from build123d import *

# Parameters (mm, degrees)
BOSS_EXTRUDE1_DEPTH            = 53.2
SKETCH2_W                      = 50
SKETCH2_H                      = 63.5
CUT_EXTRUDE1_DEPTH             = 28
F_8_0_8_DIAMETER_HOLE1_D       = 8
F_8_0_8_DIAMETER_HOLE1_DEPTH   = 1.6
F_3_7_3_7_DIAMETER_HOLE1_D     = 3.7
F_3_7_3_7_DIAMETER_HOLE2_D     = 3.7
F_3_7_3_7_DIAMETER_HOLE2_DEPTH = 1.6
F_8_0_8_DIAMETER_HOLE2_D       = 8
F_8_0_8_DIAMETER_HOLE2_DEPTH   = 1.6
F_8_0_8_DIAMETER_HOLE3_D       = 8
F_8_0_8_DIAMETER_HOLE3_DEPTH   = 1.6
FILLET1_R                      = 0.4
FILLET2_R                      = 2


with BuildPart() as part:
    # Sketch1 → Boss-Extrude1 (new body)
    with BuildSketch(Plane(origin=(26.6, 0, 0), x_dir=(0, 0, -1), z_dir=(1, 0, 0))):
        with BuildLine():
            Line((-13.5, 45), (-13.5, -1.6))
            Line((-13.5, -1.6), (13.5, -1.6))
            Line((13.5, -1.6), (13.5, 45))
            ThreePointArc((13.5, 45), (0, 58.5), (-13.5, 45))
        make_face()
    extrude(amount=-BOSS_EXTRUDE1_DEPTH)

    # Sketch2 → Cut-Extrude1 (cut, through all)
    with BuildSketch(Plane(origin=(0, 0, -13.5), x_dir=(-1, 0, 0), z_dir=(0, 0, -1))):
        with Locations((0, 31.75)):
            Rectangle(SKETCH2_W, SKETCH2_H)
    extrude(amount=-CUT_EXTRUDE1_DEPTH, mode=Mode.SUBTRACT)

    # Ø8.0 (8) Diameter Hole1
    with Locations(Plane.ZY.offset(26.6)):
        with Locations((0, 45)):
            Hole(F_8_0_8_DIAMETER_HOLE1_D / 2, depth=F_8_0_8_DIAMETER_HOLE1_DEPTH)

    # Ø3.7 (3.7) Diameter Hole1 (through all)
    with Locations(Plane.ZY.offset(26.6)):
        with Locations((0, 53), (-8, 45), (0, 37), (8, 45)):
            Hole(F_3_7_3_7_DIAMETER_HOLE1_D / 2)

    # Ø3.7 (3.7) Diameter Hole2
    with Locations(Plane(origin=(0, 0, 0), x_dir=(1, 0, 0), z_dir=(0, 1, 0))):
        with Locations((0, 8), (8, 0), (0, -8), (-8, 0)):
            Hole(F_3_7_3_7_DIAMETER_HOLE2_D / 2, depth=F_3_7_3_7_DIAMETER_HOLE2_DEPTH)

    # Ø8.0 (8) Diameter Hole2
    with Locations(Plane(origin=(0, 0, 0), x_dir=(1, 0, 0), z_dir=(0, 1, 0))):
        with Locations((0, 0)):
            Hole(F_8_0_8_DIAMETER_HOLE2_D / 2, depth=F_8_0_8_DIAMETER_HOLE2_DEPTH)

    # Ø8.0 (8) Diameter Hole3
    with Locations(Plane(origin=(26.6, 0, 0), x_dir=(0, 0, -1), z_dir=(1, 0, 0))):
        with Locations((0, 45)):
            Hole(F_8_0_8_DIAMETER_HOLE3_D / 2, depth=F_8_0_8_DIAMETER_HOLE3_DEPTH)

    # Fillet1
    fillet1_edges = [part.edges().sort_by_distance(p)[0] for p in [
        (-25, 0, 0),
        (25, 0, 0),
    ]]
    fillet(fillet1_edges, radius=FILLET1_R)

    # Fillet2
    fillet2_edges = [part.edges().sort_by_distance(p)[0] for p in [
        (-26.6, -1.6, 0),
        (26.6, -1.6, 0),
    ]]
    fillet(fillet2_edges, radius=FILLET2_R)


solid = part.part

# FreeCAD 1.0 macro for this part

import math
import FreeCAD as App
import Part
import Sketcher
Q = App.Units.Quantity


def edges_at(feature, points):
    """Names of the edges that pass closest to the given points."""
    edges = feature.Shape.Edges
    near = lambda p: min(range(len(edges)), key=lambda i: edges[i].distToShape(Part.Vertex(*p))[0])
    return sorted({f"Edge{near(p) + 1}" for p in points})

doc = App.newDocument("Part")
body = doc.addObject("PartDesign::Body", "Body")

# Sketch on YZ plane
sketch1 = body.newObject("Sketcher::SketchObject", "Sketch")
sketch1.AttachmentSupport = (doc.getObject("YZ_Plane"), [""])
sketch1.MapMode = "FlatFace"
sketch1.AttachmentOffset = App.Placement(App.Vector(0, 0, 26.6), App.Rotation())
sketch1.addGeometry(Part.LineSegment(App.Vector(45, 13.5, 0), App.Vector(-1.6, 13.5, 0)), False)
sketch1.addGeometry(Part.LineSegment(App.Vector(-1.6, 13.5, 0), App.Vector(-1.6, -13.5, 0)), False)
sketch1.addGeometry(Part.LineSegment(App.Vector(-1.6, -13.5, 0), App.Vector(45, -13.5, 0)), False)
sketch1.addGeometry(Part.ArcOfCircle(Part.Circle(App.Vector(45, 0, 0), App.Vector(0, 0, 1), 13.5), math.radians(-90), math.radians(90)), False)
sketch1.addConstraint(Sketcher.Constraint("Coincident", 0, 2, 1, 1))
sketch1.addConstraint(Sketcher.Constraint("Coincident", 1, 2, 2, 1))
sketch1.addConstraint(Sketcher.Constraint("Tangent", 2, 2, 3, 1))
sketch1.addConstraint(Sketcher.Constraint("Tangent", 3, 2, 0, 1))
sketch1.addConstraint(Sketcher.Constraint("Horizontal", 0))
sketch1.addConstraint(Sketcher.Constraint("Vertical", 1))
sketch1.addConstraint(Sketcher.Constraint("Horizontal", 2))
sketch1.addConstraint(Sketcher.Constraint("PointOnObject", 3, 3, -1))
sketch1.addConstraint(Sketcher.Constraint("Radius", 3, Q("13.5 mm")))
sketch1.addConstraint(Sketcher.Constraint("DistanceX", 0, 2, 0, 1, Q("46.6 mm")))
sketch1.addConstraint(Sketcher.Constraint("DistanceX", -1, 1, 3, 3, Q("45 mm")))
pad1 = body.newObject("PartDesign::Pad", "Pad")
pad1.Profile = sketch1
pad1.Length = 53.2
pad1.Reversed = True

# Sketch on XY plane
sketch2 = body.newObject("Sketcher::SketchObject", "Sketch001")
sketch2.AttachmentSupport = (doc.getObject("XY_Plane"), [""])
sketch2.MapMode = "FlatFace"
sketch2.AttachmentOffset = App.Placement(App.Vector(0, 0, -13.5), App.Rotation())
sketch2.addGeometry(Part.LineSegment(App.Vector(25, 63.5, 0), App.Vector(25, 0, 0)), False)
sketch2.addGeometry(Part.LineSegment(App.Vector(25, 0, 0), App.Vector(-25, 0, 0)), False)
sketch2.addGeometry(Part.LineSegment(App.Vector(-25, 0, 0), App.Vector(-25, 63.5, 0)), False)
sketch2.addGeometry(Part.LineSegment(App.Vector(-25, 63.5, 0), App.Vector(25, 63.5, 0)), False)
sketch2.addConstraint(Sketcher.Constraint("Coincident", 0, 2, 1, 1))
sketch2.addConstraint(Sketcher.Constraint("Coincident", 1, 2, 2, 1))
sketch2.addConstraint(Sketcher.Constraint("Coincident", 2, 2, 3, 1))
sketch2.addConstraint(Sketcher.Constraint("Coincident", 3, 2, 0, 1))
sketch2.addConstraint(Sketcher.Constraint("Vertical", 0))
sketch2.addConstraint(Sketcher.Constraint("Horizontal", 1))
sketch2.addConstraint(Sketcher.Constraint("Vertical", 2))
sketch2.addConstraint(Sketcher.Constraint("Horizontal", 3))
sketch2.addConstraint(Sketcher.Constraint("Symmetric", 0, 2, 1, 2, -1, 1))
sketch2.addConstraint(Sketcher.Constraint("DistanceX", 1, 2, 1, 1, Q("50 mm")))
sketch2.addConstraint(Sketcher.Constraint("DistanceY", 0, 2, 0, 1, Q("63.5 mm")))
pocket1 = body.newObject("PartDesign::Pocket", "Pocket")
pocket1.Profile = sketch2
pocket1.Type = "ThroughAll"
pocket1.Reversed = True

# Sketch on YZ plane
sketch3 = body.newObject("Sketcher::SketchObject", "Sketch002")
sketch3.AttachmentSupport = (doc.getObject("YZ_Plane"), [""])
sketch3.MapMode = "FlatFace"
sketch3.AttachmentOffset = App.Placement(App.Vector(0, 0, -26.6), App.Rotation())
sketch3.addGeometry(Part.Circle(App.Vector(45, 0, 0), App.Vector(0, 0, 1), 4), False)
sketch3.addConstraint(Sketcher.Constraint("PointOnObject", 0, 3, -1))
sketch3.addConstraint(Sketcher.Constraint("Diameter", 0, Q("8 mm")))
sketch3.addConstraint(Sketcher.Constraint("DistanceX", -1, 1, 0, 3, Q("45 mm")))
doc.recompute()
hole = body.newObject("PartDesign::Hole", "Hole")
hole.Profile = sketch3
hole.ThreadType = "None"
hole.Diameter = 8
hole.DepthType = "Dimension"
hole.Depth = 1.6
hole.DrillPoint = "Flat"
hole.Reversed = True

# Sketch on YZ plane
sketch4 = body.newObject("Sketcher::SketchObject", "Sketch003")
sketch4.AttachmentSupport = (doc.getObject("YZ_Plane"), [""])
sketch4.MapMode = "FlatFace"
sketch4.AttachmentOffset = App.Placement(App.Vector(0, 0, -26.6), App.Rotation())
sketch4.addGeometry(Part.Circle(App.Vector(53, 0, 0), App.Vector(0, 0, 1), 1.85), False)
sketch4.addGeometry(Part.Circle(App.Vector(45, -8, 0), App.Vector(0, 0, 1), 1.85), False)
sketch4.addGeometry(Part.Circle(App.Vector(37, 0, 0), App.Vector(0, 0, 1), 1.85), False)
sketch4.addGeometry(Part.Circle(App.Vector(45, 8, 0), App.Vector(0, 0, 1), 1.85), False)
sketch4.addConstraint(Sketcher.Constraint("Equal", 0, 1))
sketch4.addConstraint(Sketcher.Constraint("Equal", 1, 2))
sketch4.addConstraint(Sketcher.Constraint("Equal", 2, 3))
sketch4.addConstraint(Sketcher.Constraint("Symmetric", 1, 3, 3, 3, -1))
sketch4.addConstraint(Sketcher.Constraint("PointOnObject", 0, 3, -1))
sketch4.addConstraint(Sketcher.Constraint("PointOnObject", 2, 3, -1))
sketch4.addConstraint(Sketcher.Constraint("Diameter", 0, Q("3.7 mm")))
sketch4.addConstraint(Sketcher.Constraint("DistanceX", -1, 1, 0, 3, Q("53 mm")))
sketch4.addConstraint(Sketcher.Constraint("DistanceX", -1, 1, 1, 3, Q("45 mm")))
sketch4.addConstraint(Sketcher.Constraint("DistanceY", 1, 3, -1, 1, Q("8 mm")))
sketch4.addConstraint(Sketcher.Constraint("DistanceX", -1, 1, 2, 3, Q("37 mm")))
doc.recompute()
hole2 = body.newObject("PartDesign::Hole", "Hole001")
hole2.Profile = sketch4
hole2.ThreadType = "None"
hole2.Diameter = 3.7
hole2.DepthType = "ThroughAll"
hole2.Reversed = True

# Sketch on XZ plane
sketch5 = body.newObject("Sketcher::SketchObject", "Sketch004")
sketch5.AttachmentSupport = (doc.getObject("XZ_Plane"), [""])
sketch5.MapMode = "FlatFace"
sketch5.addGeometry(Part.Circle(App.Vector(0, -8, 0), App.Vector(0, 0, 1), 1.85), False)
sketch5.addGeometry(Part.Circle(App.Vector(8, 0, 0), App.Vector(0, 0, 1), 1.85), False)
sketch5.addGeometry(Part.Circle(App.Vector(0, 8, 0), App.Vector(0, 0, 1), 1.85), False)
sketch5.addGeometry(Part.Circle(App.Vector(-8, 0, 0), App.Vector(0, 0, 1), 1.85), False)
sketch5.addConstraint(Sketcher.Constraint("Equal", 0, 1))
sketch5.addConstraint(Sketcher.Constraint("Equal", 1, 2))
sketch5.addConstraint(Sketcher.Constraint("Equal", 2, 3))
sketch5.addConstraint(Sketcher.Constraint("Symmetric", 0, 3, 2, 3, -1, 1))
sketch5.addConstraint(Sketcher.Constraint("Symmetric", 1, 3, 3, 3, -1, 1))
sketch5.addConstraint(Sketcher.Constraint("PointOnObject", 0, 3, -2))
sketch5.addConstraint(Sketcher.Constraint("PointOnObject", 1, 3, -1))
sketch5.addConstraint(Sketcher.Constraint("Diameter", 0, Q("3.7 mm")))
sketch5.addConstraint(Sketcher.Constraint("DistanceY", 0, 3, -1, 1, Q("8 mm")))
sketch5.addConstraint(Sketcher.Constraint("DistanceX", -1, 1, 1, 3, Q("8 mm")))
doc.recompute()
hole3 = body.newObject("PartDesign::Hole", "Hole002")
hole3.Profile = sketch5
hole3.ThreadType = "None"
hole3.Diameter = 3.7
hole3.DepthType = "Dimension"
hole3.Depth = 1.6
hole3.DrillPoint = "Flat"
hole3.Reversed = True

# Sketch on XZ plane
sketch6 = body.newObject("Sketcher::SketchObject", "Sketch005")
sketch6.AttachmentSupport = (doc.getObject("XZ_Plane"), [""])
sketch6.MapMode = "FlatFace"
sketch6.addGeometry(Part.Circle(App.Vector(0, 0, 0), App.Vector(0, 0, 1), 4), False)
sketch6.addConstraint(Sketcher.Constraint("Coincident", 0, 3, -1, 1))
sketch6.addConstraint(Sketcher.Constraint("Diameter", 0, Q("8 mm")))
doc.recompute()
hole4 = body.newObject("PartDesign::Hole", "Hole003")
hole4.Profile = sketch6
hole4.ThreadType = "None"
hole4.Diameter = 8
hole4.DepthType = "Dimension"
hole4.Depth = 1.6
hole4.DrillPoint = "Flat"
hole4.Reversed = True

# Sketch on YZ plane
sketch7 = body.newObject("Sketcher::SketchObject", "Sketch006")
sketch7.AttachmentSupport = (doc.getObject("YZ_Plane"), [""])
sketch7.MapMode = "FlatFace"
sketch7.AttachmentOffset = App.Placement(App.Vector(0, 0, 26.6), App.Rotation())
sketch7.addGeometry(Part.Circle(App.Vector(45, 0, 0), App.Vector(0, 0, 1), 4), False)
sketch7.addConstraint(Sketcher.Constraint("PointOnObject", 0, 3, -1))
sketch7.addConstraint(Sketcher.Constraint("Diameter", 0, Q("8 mm")))
sketch7.addConstraint(Sketcher.Constraint("DistanceX", -1, 1, 0, 3, Q("45 mm")))
doc.recompute()
hole5 = body.newObject("PartDesign::Hole", "Hole004")
hole5.Profile = sketch7
hole5.ThreadType = "None"
hole5.Diameter = 8
hole5.DepthType = "Dimension"
hole5.Depth = 1.6
hole5.DrillPoint = "Flat"
doc.recompute()

fillet = body.newObject("PartDesign::Fillet", "Fillet")
fillet.Base = (hole5, edges_at(hole5, [(-25, 0, 0), (25, 0, 0)]))
fillet.Radius = 0.4
doc.recompute()

fillet2 = body.newObject("PartDesign::Fillet", "Fillet001")
fillet2.Base = (fillet, edges_at(fillet, [(-26.6, -1.6, 0), (26.6, -1.6, 0)]))
fillet2.Radius = 2

doc.recompute()
